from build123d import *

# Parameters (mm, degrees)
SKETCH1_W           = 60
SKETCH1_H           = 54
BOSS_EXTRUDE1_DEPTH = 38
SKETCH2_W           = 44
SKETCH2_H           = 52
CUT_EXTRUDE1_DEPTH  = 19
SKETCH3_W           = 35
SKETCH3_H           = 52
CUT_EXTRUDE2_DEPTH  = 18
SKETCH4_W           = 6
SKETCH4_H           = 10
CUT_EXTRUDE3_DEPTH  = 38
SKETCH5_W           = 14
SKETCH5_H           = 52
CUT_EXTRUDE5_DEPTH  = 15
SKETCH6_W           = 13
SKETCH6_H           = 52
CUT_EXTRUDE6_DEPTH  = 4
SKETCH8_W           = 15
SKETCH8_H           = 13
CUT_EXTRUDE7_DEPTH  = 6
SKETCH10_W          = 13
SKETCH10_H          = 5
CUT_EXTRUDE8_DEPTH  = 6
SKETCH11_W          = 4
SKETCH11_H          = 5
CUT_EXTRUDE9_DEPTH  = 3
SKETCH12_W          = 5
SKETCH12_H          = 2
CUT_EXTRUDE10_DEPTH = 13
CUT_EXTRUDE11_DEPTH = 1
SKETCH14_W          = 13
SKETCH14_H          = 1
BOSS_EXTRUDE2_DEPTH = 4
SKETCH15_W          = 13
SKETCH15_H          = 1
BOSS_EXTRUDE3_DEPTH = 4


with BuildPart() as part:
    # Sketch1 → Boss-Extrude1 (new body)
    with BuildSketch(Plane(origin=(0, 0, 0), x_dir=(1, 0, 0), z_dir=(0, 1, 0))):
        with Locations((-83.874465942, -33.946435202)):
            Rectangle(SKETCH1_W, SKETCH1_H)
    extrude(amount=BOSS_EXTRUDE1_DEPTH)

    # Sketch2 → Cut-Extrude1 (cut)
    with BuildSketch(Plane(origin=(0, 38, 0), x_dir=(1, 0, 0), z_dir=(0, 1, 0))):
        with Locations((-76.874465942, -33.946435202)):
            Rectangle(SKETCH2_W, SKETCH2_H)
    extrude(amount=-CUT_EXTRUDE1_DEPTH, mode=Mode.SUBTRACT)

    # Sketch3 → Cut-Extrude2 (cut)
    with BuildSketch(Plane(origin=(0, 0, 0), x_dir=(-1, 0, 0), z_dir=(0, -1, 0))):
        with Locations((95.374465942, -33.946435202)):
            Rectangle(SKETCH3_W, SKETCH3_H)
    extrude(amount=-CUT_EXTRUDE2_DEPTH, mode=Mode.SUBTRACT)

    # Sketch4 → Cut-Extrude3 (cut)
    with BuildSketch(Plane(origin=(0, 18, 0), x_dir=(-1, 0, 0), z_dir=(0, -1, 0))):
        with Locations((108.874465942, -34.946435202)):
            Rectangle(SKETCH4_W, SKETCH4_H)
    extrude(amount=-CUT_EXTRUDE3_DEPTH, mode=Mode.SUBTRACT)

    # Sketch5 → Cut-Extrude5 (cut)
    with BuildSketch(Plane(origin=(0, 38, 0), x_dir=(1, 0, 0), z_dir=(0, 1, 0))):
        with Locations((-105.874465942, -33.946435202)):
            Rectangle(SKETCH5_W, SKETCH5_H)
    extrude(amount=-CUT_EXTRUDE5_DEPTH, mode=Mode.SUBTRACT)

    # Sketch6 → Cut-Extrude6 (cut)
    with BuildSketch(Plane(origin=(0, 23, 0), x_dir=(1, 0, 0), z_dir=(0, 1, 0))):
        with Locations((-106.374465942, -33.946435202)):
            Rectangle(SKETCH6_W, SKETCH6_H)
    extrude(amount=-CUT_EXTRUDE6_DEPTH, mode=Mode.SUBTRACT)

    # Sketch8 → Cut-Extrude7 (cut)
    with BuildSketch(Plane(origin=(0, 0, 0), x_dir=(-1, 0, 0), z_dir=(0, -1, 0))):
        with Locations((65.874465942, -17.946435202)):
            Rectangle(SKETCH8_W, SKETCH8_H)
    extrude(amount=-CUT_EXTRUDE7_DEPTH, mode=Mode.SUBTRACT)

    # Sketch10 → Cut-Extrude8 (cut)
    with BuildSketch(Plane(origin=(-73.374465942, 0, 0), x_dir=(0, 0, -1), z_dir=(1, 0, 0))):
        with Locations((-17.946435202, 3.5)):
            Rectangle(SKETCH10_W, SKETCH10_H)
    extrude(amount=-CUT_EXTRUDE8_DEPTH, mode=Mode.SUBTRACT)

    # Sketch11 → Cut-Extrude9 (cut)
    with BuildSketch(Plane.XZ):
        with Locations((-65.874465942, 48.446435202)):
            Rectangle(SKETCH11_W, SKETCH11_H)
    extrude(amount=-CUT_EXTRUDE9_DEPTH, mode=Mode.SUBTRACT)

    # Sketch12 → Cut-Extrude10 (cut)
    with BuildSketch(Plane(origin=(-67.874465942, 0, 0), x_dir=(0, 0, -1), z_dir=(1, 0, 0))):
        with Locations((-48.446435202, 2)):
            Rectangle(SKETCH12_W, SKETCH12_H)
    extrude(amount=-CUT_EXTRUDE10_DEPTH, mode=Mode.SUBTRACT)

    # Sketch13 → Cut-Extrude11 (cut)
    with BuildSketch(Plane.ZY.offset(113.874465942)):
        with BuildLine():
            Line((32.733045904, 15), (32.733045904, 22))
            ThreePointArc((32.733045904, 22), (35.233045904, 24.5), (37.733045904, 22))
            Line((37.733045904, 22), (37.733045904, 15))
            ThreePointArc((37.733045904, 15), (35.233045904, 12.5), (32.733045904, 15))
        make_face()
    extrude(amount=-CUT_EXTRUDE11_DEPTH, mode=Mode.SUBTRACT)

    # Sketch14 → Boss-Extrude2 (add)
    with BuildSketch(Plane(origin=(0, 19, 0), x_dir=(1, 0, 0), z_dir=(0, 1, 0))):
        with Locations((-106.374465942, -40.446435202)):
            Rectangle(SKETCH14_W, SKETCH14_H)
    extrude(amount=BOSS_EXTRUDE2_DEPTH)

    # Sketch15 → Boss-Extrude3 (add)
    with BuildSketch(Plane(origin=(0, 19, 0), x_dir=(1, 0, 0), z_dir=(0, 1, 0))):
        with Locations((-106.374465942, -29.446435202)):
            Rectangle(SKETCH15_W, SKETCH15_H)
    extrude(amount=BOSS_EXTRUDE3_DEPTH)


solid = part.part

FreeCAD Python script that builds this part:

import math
import FreeCAD as App
import Part
import Sketcher
Q = App.Units.Quantity


def add_polygon(sketch, points):
    """Adds a closed chain of lines whose ends are joined by coincident constraints."""
    first, n = sketch.GeometryCount, len(points)
    for a, b in zip(points, points[1:] + points[:1]):
        sketch.addGeometry(Part.LineSegment(App.Vector(*a, 0), App.Vector(*b, 0)), False)
    for i in range(n):
        sketch.addConstraint(Sketcher.Constraint("Coincident", first + i, 2, first + (i + 1) % n, 1))

doc = App.newDocument("Part")
body = doc.addObject("PartDesign::Body", "Body")

# Sketch on XZ plane
sketch1 = doc.addObject("Sketcher::SketchObject", "Sketch")
body.addObject(sketch1)
sketch1.AttachmentSupport = (doc.XZ_Plane, [""])
sketch1.MapMode = "FlatFace"
add_polygon(sketch1, [(-114, 7), (-114, 61), (-54, 61), (-54, 7)])  # lines 0-3
sketch1.addConstraint([
    Sketcher.Constraint("Vertical", 0),
    Sketcher.Constraint("Horizontal", 1),
    Sketcher.Constraint("Vertical", 2),
    Sketcher.Constraint("Horizontal", 3),
    Sketcher.Constraint("DistanceX", 1, 1, 1, 2, Q("60 mm")),
    Sketcher.Constraint("DistanceY", 0, 1, 0, 2, Q("54 mm")),
    Sketcher.Constraint("DistanceX", 0, 2, -1, 1, Q("113.874466 mm")),
    Sketcher.Constraint("DistanceY", -1, 1, 0, 2, Q("60.946435 mm")),
])
pad1 = doc.addObject("PartDesign::Pad", "Pad")
body.addObject(pad1)
pad1.Profile = sketch1
pad1.Length = 38
pad1.Reversed = True

# Sketch on XZ plane
sketch2 = doc.addObject("Sketcher::SketchObject", "Sketch001")
body.addObject(sketch2)
sketch2.AttachmentSupport = (doc.XZ_Plane, [""])
sketch2.MapMode = "FlatFace"
sketch2.AttachmentOffset = App.Placement(App.Vector(0, 0, -38), App.Rotation())
add_polygon(sketch2, [(-99, 8), (-99, 60), (-55, 60), (-55, 8)])  # lines 0-3
sketch2.addConstraint([
    Sketcher.Constraint("Vertical", 0),
    Sketcher.Constraint("Horizontal", 1),
    Sketcher.Constraint("Vertical", 2),
    Sketcher.Constraint("Horizontal", 3),
    Sketcher.Constraint("DistanceX", 1, 1, 1, 2, Q("44 mm")),
    Sketcher.Constraint("DistanceY", 0, 1, 0, 2, Q("52 mm")),
    Sketcher.Constraint("DistanceX", 0, 2, -1, 1, Q("98.874466 mm")),
    Sketcher.Constraint("DistanceY", -1, 1, 0, 2, Q("59.946435 mm")),
])
pocket1 = doc.addObject("PartDesign::Pocket", "Pocket")
body.addObject(pocket1)
pocket1.Profile = sketch2
pocket1.Length = 19
pocket1.Reversed = True

# Sketch on XZ plane
sketch3 = doc.addObject("Sketcher::SketchObject", "Sketch002")
body.addObject(sketch3)
sketch3.AttachmentSupport = (doc.XZ_Plane, [""])
sketch3.MapMode = "FlatFace"
add_polygon(sketch3, [(-78, 8), (-78, 60), (-113, 60), (-113, 8)])  # lines 0-3
sketch3.addConstraint([
    Sketcher.Constraint("Vertical", 0),
    Sketcher.Constraint("Horizontal", 1),
    Sketcher.Constraint("Vertical", 2),
    Sketcher.Constraint("Horizontal", 3),
    Sketcher.Constraint("DistanceX", 1, 2, 1, 1, Q("35 mm")),
    Sketcher.Constraint("DistanceY", 0, 1, 0, 2, Q("52 mm")),
    Sketcher.Constraint("DistanceX", 0, 2, -1, 1, Q("77.874466 mm")),
    Sketcher.Constraint("DistanceY", -1, 1, 0, 2, Q("59.946435 mm")),
])
pocket2 = doc.addObject("PartDesign::Pocket", "Pocket001")
body.addObject(pocket2)
pocket2.Profile = sketch3
pocket2.Length = 18

# Sketch on XZ plane
sketch4 = doc.addObject("Sketcher::SketchObject", "Sketch003")
body.addObject(sketch4)
sketch4.AttachmentSupport = (doc.XZ_Plane, [""])
sketch4.MapMode = "FlatFace"
sketch4.AttachmentOffset = App.Placement(App.Vector(0, 0, -18), App.Rotation())
add_polygon(sketch4, [(-106, 30), (-106, 40), (-112, 40), (-112, 30)])  # lines 0-3
sketch4.addConstraint([
    Sketcher.Constraint("Vertical", 0),
    Sketcher.Constraint("Horizontal", 1),
    Sketcher.Constraint("Vertical", 2),
    Sketcher.Constraint("Horizontal", 3),
    Sketcher.Constraint("DistanceX", 1, 2, 1, 1, Q("6 mm")),
    Sketcher.Constraint("DistanceY", 0, 1, 0, 2, Q("10 mm")),
    Sketcher.Constraint("DistanceX", 0, 2, -1, 1, Q("105.874466 mm")),
    Sketcher.Constraint("DistanceY", -1, 1, 0, 2, Q("39.946435 mm")),
])
pocket3 = doc.addObject("PartDesign::Pocket", "Pocket002")
body.addObject(pocket3)
pocket3.Profile = sketch4
pocket3.Length = 38

# Sketch on XZ plane
sketch5 = doc.addObject("Sketcher::SketchObject", "Sketch004")
body.addObject(sketch5)
sketch5.AttachmentSupport = (doc.XZ_Plane, [""])
sketch5.MapMode = "FlatFace"
sketch5.AttachmentOffset = App.Placement(App.Vector(0, 0, -38), App.Rotation())
add_polygon(sketch5, [(-113, 8), (-113, 60), (-99, 60), (-99, 8)])  # lines 0-3
sketch5.addConstraint([
    Sketcher.Constraint("Vertical", 0),
    Sketcher.Constraint("Horizontal", 1),
    Sketcher.Constraint("Vertical", 2),
    Sketcher.Constraint("Horizontal", 3),
    Sketcher.Constraint("DistanceX", 1, 1, 1, 2, Q("14 mm")),
    Sketcher.Constraint("DistanceY", 0, 1, 0, 2, Q("52 mm")),
    Sketcher.Constraint("DistanceX", 0, 2, -1, 1, Q("112.874466 mm")),
    Sketcher.Constraint("DistanceY", -1, 1, 0, 2, Q("59.946435 mm")),
])
pocket4 = doc.addObject("PartDesign::Pocket", "Pocket003")
body.addObject(pocket4)
pocket4.Profile = sketch5
pocket4.Length = 15
pocket4.Reversed = True

# Sketch on XZ plane
sketch6 = doc.addObject("Sketcher::SketchObject", "Sketch005")
body.addObject(sketch6)
sketch6.AttachmentSupport = (doc.XZ_Plane, [""])
sketch6.MapMode = "FlatFace"
sketch6.AttachmentOffset = App.Placement(App.Vector(0, 0, -23), App.Rotation())
add_polygon(sketch6, [(-113, 8), (-113, 60), (-100, 60), (-100, 8)])  # lines 0-3
sketch6.addConstraint([
    Sketcher.Constraint("Vertical", 0),
    Sketcher.Constraint("Horizontal", 1),
    Sketcher.Constraint("Vertical", 2),
    Sketcher.Constraint("Horizontal", 3),
    Sketcher.Constraint("DistanceX", 1, 1, 1, 2, Q("13 mm")),
    Sketcher.Constraint("DistanceY", 0, 1, 0, 2, Q("52 mm")),
    Sketcher.Constraint("DistanceX", 0, 2, -1, 1, Q("112.874466 mm")),
    Sketcher.Constraint("DistanceY", -1, 1, 0, 2, Q("59.946435 mm")),
])
pocket5 = doc.addObject("PartDesign::Pocket", "Pocket004")
body.addObject(pocket5)
pocket5.Profile = sketch6
pocket5.Length = 4
pocket5.Reversed = True

# Sketch on XZ plane
sketch7 = doc.addObject("Sketcher::SketchObject", "Sketch006")
body.addObject(sketch7)
sketch7.AttachmentSupport = (doc.XZ_Plane, [""])
sketch7.MapMode = "FlatFace"
add_polygon(sketch7, [(-58, 11), (-58, 24), (-73, 24), (-73, 11)])  # lines 0-3
sketch7.addConstraint([
    Sketcher.Constraint("Vertical", 0),
    Sketcher.Constraint("Horizontal", 1),
    Sketcher.Constraint("Vertical", 2),
    Sketcher.Constraint("Horizontal", 3),
    Sketcher.Constraint("DistanceX", 1, 2, 1, 1, Q("15 mm")),
    Sketcher.Constraint("DistanceY", 0, 1, 0, 2, Q("13 mm")),
    Sketcher.Constraint("DistanceX", 0, 2, -1, 1, Q("58.374466 mm")),
    Sketcher.Constraint("DistanceY", -1, 1, 0, 2, Q("24.446435 mm")),
])
pocket6 = doc.addObject("PartDesign::Pocket", "Pocket005")
body.addObject(pocket6)
pocket6.Profile = sketch7
pocket6.Length = 6

# Sketch on YZ plane
sketch8 = doc.addObject("Sketcher::SketchObject", "Sketch007")
body.addObject(sketch8)
sketch8.AttachmentSupport = (doc.YZ_Plane, [""])
sketch8.MapMode = "FlatFace"
sketch8.AttachmentOffset = App.Placement(App.Vector(0, 0, -73.374466), App.Rotation())
add_polygon(sketch8, [(6, 24), (1, 24), (1, 11), (6, 11)])  # lines 0-3
sketch8.addConstraint([
    Sketcher.Constraint("Horizontal", 0),
    Sketcher.Constraint("Vertical", 1),
    Sketcher.Constraint("Horizontal", 2),
    Sketcher.Constraint("Vertical", 3),
    Sketcher.Constraint("DistanceX", 0, 2, 0, 1, Q("5 mm")),
    Sketcher.Constraint("DistanceY", 1, 2, 1, 1, Q("13 mm")),
    Sketcher.Constraint("DistanceX", -1, 1, 0, 2, Q("1 mm")),
    Sketcher.Constraint("DistanceY", -1, 1, 0, 2, Q("24.446435 mm")),
])
pocket7 = doc.addObject("PartDesign::Pocket", "Pocket006")
body.addObject(pocket7)
pocket7.Profile = sketch8
pocket7.Length = 6

# Sketch on XZ plane
sketch9 = doc.addObject("Sketcher::SketchObject", "Sketch008")
body.addObject(sketch9)
sketch9.AttachmentSupport = (doc.XZ_Plane, [""])
sketch9.MapMode = "FlatFace"
add_polygon(sketch9, [(-67.9, 50.9), (-67.9, 45.9), (-63.9, 45.9), (-63.9, 50.9)])  # lines 0-3
sketch9.addConstraint([
    Sketcher.Constraint("Vertical", 0),
    Sketcher.Constraint("Horizontal", 1),
    Sketcher.Constraint("Vertical", 2),
    Sketcher.Constraint("Horizontal", 3),
    Sketcher.Constraint("DistanceX", 1, 1, 1, 2, Q("4 mm")),
    Sketcher.Constraint("DistanceY", 0, 2, 0, 1, Q("5 mm")),
    Sketcher.Constraint("DistanceX", 0, 2, -1, 1, Q("67.874466 mm")),
    Sketcher.Constraint("DistanceY", -1, 1, 0, 2, Q("45.946435 mm")),
])
pocket8 = doc.addObject("PartDesign::Pocket", "Pocket007")
body.addObject(pocket8)
pocket8.Profile = sketch9
pocket8.Length = 3

# Sketch on YZ plane
sketch10 = doc.addObject("Sketcher::SketchObject", "Sketch009")
body.addObject(sketch10)
sketch10.AttachmentSupport = (doc.YZ_Plane, [""])
sketch10.MapMode = "FlatFace"
sketch10.AttachmentOffset = App.Placement(App.Vector(0, 0, -67.874466), App.Rotation())
add_polygon(sketch10, [(3, 50.9), (1, 50.9), (1, 45.9), (3, 45.9)])  # lines 0-3
sketch10.addConstraint([
    Sketcher.Constraint("Horizontal", 0),
    Sketcher.Constraint("Vertical", 1),
    Sketcher.Constraint("Horizontal", 2),
    Sketcher.Constraint("Vertical", 3),
    Sketcher.Constraint("DistanceX", 0, 2, 0, 1, Q("2 mm")),
    Sketcher.Constraint("DistanceY", 1, 2, 1, 1, Q("5 mm")),
    Sketcher.Constraint("DistanceX", -1, 1, 0, 2, Q("1 mm")),
    Sketcher.Constraint("DistanceY", -1, 1, 0, 2, Q("50.946435 mm")),
])
pocket9 = doc.addObject("PartDesign::Pocket", "Pocket008")
body.addObject(pocket9)
pocket9.Profile = sketch10
pocket9.Length = 13

# Sketch on YZ plane
sketch11 = doc.addObject("Sketcher::SketchObject", "Sketch010")
body.addObject(sketch11)
sketch11.AttachmentSupport = (doc.YZ_Plane, [""])
sketch11.MapMode = "FlatFace"
sketch11.AttachmentOffset = App.Placement(App.Vector(0, 0, -113.874466), App.Rotation())
sketch11.addGeometry([
    Part.LineSegment(App.Vector(22, 32.7, 0), App.Vector(15, 32.7, 0)),
    Part.ArcOfCircle(Part.Circle(App.Vector(15, 35.2, 0), App.Vector(0, 0, 1), 2.5), math.radians(90), math.radians(270)),
    Part.LineSegment(App.Vector(15, 37.7, 0), App.Vector(22, 37.7, 0)),
    Part.ArcOfCircle(Part.Circle(App.Vector(22, 35.2, 0), App.Vector(0, 0, 1), 2.5), math.radians(-90), math.radians(90)),
], False)
sketch11.addConstraint([
    Sketcher.Constraint("Tangent", 0, 2, 1, 2),
    Sketcher.Constraint("Tangent", 1, 1, 2, 1),
    Sketcher.Constraint("Tangent", 2, 2, 3, 2),
    Sketcher.Constraint("Tangent", 3, 1, 0, 1),
    Sketcher.Constraint("Horizontal", 0),
    Sketcher.Constraint("Horizontal", 2),
    Sketcher.Constraint("Radius", 1, Q("2.5 mm")),
    Sketcher.Constraint("DistanceX", 0, 2, 0, 1, Q("7 mm")),
    Sketcher.Constraint("DistanceX", -1, 1, 1, 3, Q("15 mm")),
    Sketcher.Constraint("DistanceY", -1, 1, 1, 3, Q("35.233046 mm")),
])
pocket10 = doc.addObject("PartDesign::Pocket", "Pocket009")
body.addObject(pocket10)
pocket10.Profile = sketch11
pocket10.Length = 1
pocket10.Reversed = True

# Sketch on XZ plane
sketch12 = doc.addObject("Sketcher::SketchObject", "Sketch011")
body.addObject(sketch12)
sketch12.AttachmentSupport = (doc.XZ_Plane, [""])
sketch12.MapMode = "FlatFace"
sketch12.AttachmentOffset = App.Placement(App.Vector(0, 0, -19), App.Rotation())
add_polygon(sketch12, [(-112.9, 39.9), (-112.9, 40.9), (-99.9, 40.9), (-99.9, 39.9)])  # lines 0-3
sketch12.addConstraint([
    Sketcher.Constraint("Vertical", 0),
    Sketcher.Constraint("Horizontal", 1),
    Sketcher.Constraint("Vertical", 2),
    Sketcher.Constraint("Horizontal", 3),
    Sketcher.Constraint("DistanceX", 1, 1, 1, 2, Q("13 mm")),
    Sketcher.Constraint("DistanceY", 0, 1, 0, 2, Q("1 mm")),
    Sketcher.Constraint("DistanceX", 0, 2, -1, 1, Q("112.874466 mm")),
    Sketcher.Constraint("DistanceY", -1, 1, 0, 2, Q("40.946435 mm")),
])
pad2 = doc.addObject("PartDesign::Pad", "Pad001")
body.addObject(pad2)
pad2.Profile = sketch12
pad2.Length = 4
pad2.Reversed = True

# Sketch on XZ plane
sketch13 = doc.addObject("Sketcher::SketchObject", "Sketch012")
body.addObject(sketch13)
sketch13.AttachmentSupport = (doc.XZ_Plane, [""])
sketch13.MapMode = "FlatFace"
sketch13.AttachmentOffset = App.Placement(App.Vector(0, 0, -19), App.Rotation())
add_polygon(sketch13, [(-112.9, 28.9), (-112.9, 29.9), (-99.9, 29.9), (-99.9, 28.9)])  # lines 0-3
sketch13.addConstraint([
    Sketcher.Constraint("Vertical", 0),
    Sketcher.Constraint("Horizontal", 1),
    Sketcher.Constraint("Vertical", 2),
    Sketcher.Constraint("Horizontal", 3),
    Sketcher.Constraint("DistanceX", 1, 1, 1, 2, Q("13 mm")),
    Sketcher.Constraint("DistanceY", 0, 1, 0, 2, Q("1 mm")),
    Sketcher.Constraint("DistanceX", 0, 2, -1, 1, Q("112.874466 mm")),
    Sketcher.Constraint("DistanceY", -1, 1, 0, 2, Q("29.946435 mm")),
])
pad3 = doc.addObject("PartDesign::Pad", "Pad002")
body.addObject(pad3)
pad3.Profile = sketch13
pad3.Length = 4
pad3.Reversed = True

doc.recompute()
